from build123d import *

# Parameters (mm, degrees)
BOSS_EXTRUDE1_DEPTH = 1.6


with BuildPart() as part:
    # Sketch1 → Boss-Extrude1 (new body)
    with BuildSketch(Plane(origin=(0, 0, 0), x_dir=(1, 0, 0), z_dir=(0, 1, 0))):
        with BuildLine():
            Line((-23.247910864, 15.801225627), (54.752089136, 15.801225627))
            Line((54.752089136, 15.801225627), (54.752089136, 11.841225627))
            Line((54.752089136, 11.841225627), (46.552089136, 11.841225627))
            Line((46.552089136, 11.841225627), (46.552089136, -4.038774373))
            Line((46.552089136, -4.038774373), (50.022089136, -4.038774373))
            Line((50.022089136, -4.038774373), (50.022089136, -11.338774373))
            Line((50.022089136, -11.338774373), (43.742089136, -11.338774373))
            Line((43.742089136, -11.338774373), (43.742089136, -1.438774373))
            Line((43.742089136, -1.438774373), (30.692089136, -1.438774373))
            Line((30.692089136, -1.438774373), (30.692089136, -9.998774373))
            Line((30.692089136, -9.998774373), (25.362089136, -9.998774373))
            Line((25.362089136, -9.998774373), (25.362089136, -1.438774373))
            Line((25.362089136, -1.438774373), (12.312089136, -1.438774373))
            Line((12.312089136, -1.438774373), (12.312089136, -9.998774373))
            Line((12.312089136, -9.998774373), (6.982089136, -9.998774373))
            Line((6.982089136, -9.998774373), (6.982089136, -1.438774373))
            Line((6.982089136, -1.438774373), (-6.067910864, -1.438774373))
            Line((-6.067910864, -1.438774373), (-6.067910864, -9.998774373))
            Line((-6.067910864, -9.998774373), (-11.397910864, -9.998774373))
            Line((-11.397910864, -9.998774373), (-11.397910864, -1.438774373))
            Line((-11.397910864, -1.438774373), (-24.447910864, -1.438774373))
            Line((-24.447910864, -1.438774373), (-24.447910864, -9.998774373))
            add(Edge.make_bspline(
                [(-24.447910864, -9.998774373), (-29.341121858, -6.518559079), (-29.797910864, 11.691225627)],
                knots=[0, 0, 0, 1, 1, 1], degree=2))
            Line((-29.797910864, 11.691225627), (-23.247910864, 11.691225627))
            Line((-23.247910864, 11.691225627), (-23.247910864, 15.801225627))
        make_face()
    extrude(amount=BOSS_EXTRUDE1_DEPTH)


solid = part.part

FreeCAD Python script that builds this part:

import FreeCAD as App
import Part
import Sketcher

V = App.Vector

doc = App.newDocument("Part")
body = doc.addObject("PartDesign::Body", "Body")

sketch1 = body.newObject("Sketcher::SketchObject", "Sketch")
sketch1.AttachmentSupport = (doc.getObject("XZ_Plane"), [""])
sketch1.MapMode = "FlatFace"
sketch1.addGeometry(Part.LineSegment(V(54.752089, -15.801226, 0), V(-23.247911, -15.801226, 0)), False)
sketch1.addGeometry(Part.LineSegment(V(-23.247911, -15.801226, 0), V(-23.247911, -11.691226, 0)), False)
sketch1.addGeometry(Part.LineSegment(V(-23.247911, -11.691226, 0), V(-29.797911, -11.691226, 0)), False)
sketch1.addGeometry(Part.BSplineCurve([V(-24.447911, 9.998774, 0), V(-29.341122, 6.518559, 0), V(-29.797911, -11.691226, 0)], [3, 3], [0, 1], False, 2, [1, 1, 1], False), False)
sketch1.addGeometry(Part.LineSegment(V(-24.447911, 9.998774, 0), V(-24.447911, 1.438774, 0)), False)
sketch1.addGeometry(Part.LineSegment(V(-24.447911, 1.438774, 0), V(-11.397911, 1.438774, 0)), False)
sketch1.addGeometry(Part.LineSegment(V(-11.397911, 1.438774, 0), V(-11.397911, 9.998774, 0)), False)
sketch1.addGeometry(Part.LineSegment(V(-11.397911, 9.998774, 0), V(-6.067911, 9.998774, 0)), False)
sketch1.addGeometry(Part.LineSegment(V(-6.067911, 9.998774, 0), V(-6.067911, 1.438774, 0)), False)
sketch1.addGeometry(Part.LineSegment(V(-6.067911, 1.438774, 0), V(6.982089, 1.438774, 0)), False)
sketch1.addGeometry(Part.LineSegment(V(6.982089, 1.438774, 0), V(6.982089, 9.998774, 0)), False)
sketch1.addGeometry(Part.LineSegment(V(6.982089, 9.998774, 0), V(12.312089, 9.998774, 0)), False)
sketch1.addGeometry(Part.LineSegment(V(12.312089, 9.998774, 0), V(12.312089, 1.438774, 0)), False)
sketch1.addGeometry(Part.LineSegment(V(12.312089, 1.438774, 0), V(25.362089, 1.438774, 0)), False)
sketch1.addGeometry(Part.LineSegment(V(25.362089, 1.438774, 0), V(25.362089, 9.998774, 0)), False)
sketch1.addGeometry(Part.LineSegment(V(25.362089, 9.998774, 0), V(30.692089, 9.998774, 0)), False)
sketch1.addGeometry(Part.LineSegment(V(30.692089, 9.998774, 0), V(30.692089, 1.438774, 0)), False)
sketch1.addGeometry(Part.LineSegment(V(30.692089, 1.438774, 0), V(43.742089, 1.438774, 0)), False)
sketch1.addGeometry(Part.LineSegment(V(43.742089, 1.438774, 0), V(43.742089, 11.338774, 0)), False)
sketch1.addGeometry(Part.LineSegment(V(43.742089, 11.338774, 0), V(50.022089, 11.338774, 0)), False)
sketch1.addGeometry(Part.LineSegment(V(50.022089, 11.338774, 0), V(50.022089, 4.038774, 0)), False)
sketch1.addGeometry(Part.LineSegment(V(50.022089, 4.038774, 0), V(46.552089, 4.038774, 0)), False)
sketch1.addGeometry(Part.LineSegment(V(46.552089, 4.038774, 0), V(46.552089, -11.841226, 0)), False)
sketch1.addGeometry(Part.LineSegment(V(46.552089, -11.841226, 0), V(54.752089, -11.841226, 0)), False)
sketch1.addGeometry(Part.LineSegment(V(54.752089, -11.841226, 0), V(54.752089, -15.801226, 0)), False)
sketch1.addConstraint(Sketcher.Constraint("Block", 3))
sketch1.addConstraint(Sketcher.Constraint("Coincident", 0, 2, 1, 1))
sketch1.addConstraint(Sketcher.Constraint("Coincident", 1, 2, 2, 1))
sketch1.addConstraint(Sketcher.Constraint("Coincident", 2, 2, 3, 2))
sketch1.addConstraint(Sketcher.Constraint("Coincident", 3, 1, 4, 1))
sketch1.addConstraint(Sketcher.Constraint("Coincident", 4, 2, 5, 1))
sketch1.addConstraint(Sketcher.Constraint("Coincident", 5, 2, 6, 1))
sketch1.addConstraint(Sketcher.Constraint("Coincident", 6, 2, 7, 1))
sketch1.addConstraint(Sketcher.Constraint("Coincident", 7, 2, 8, 1))
sketch1.addConstraint(Sketcher.Constraint("Coincident", 8, 2, 9, 1))
sketch1.addConstraint(Sketcher.Constraint("Coincident", 9, 2, 10, 1))
sketch1.addConstraint(Sketcher.Constraint("Coincident", 10, 2, 11, 1))
sketch1.addConstraint(Sketcher.Constraint("Coincident", 11, 2, 12, 1))
sketch1.addConstraint(Sketcher.Constraint("Coincident", 12, 2, 13, 1))
sketch1.addConstraint(Sketcher.Constraint("Coincident", 13, 2, 14, 1))
sketch1.addConstraint(Sketcher.Constraint("Coincident", 14, 2, 15, 1))
sketch1.addConstraint(Sketcher.Constraint("Coincident", 15, 2, 16, 1))
sketch1.addConstraint(Sketcher.Constraint("Coincident", 16, 2, 17, 1))
sketch1.addConstraint(Sketcher.Constraint("Coincident", 17, 2, 18, 1))
sketch1.addConstraint(Sketcher.Constraint("Coincident", 18, 2, 19, 1))
sketch1.addConstraint(Sketcher.Constraint("Coincident", 19, 2, 20, 1))
sketch1.addConstraint(Sketcher.Constraint("Coincident", 20, 2, 21, 1))
sketch1.addConstraint(Sketcher.Constraint("Coincident", 21, 2, 22, 1))
sketch1.addConstraint(Sketcher.Constraint("Coincident", 22, 2, 23, 1))
sketch1.addConstraint(Sketcher.Constraint("Coincident", 23, 2, 24, 1))
sketch1.addConstraint(Sketcher.Constraint("Coincident", 24, 2, 0, 1))
sketch1.addConstraint(Sketcher.Constraint("Horizontal", 0))
sketch1.addConstraint(Sketcher.Constraint("Vertical", 1))
sketch1.addConstraint(Sketcher.Constraint("Horizontal", 2))
sketch1.addConstraint(Sketcher.Constraint("Vertical", 4))
sketch1.addConstraint(Sketcher.Constraint("Horizontal", 5))
sketch1.addConstraint(Sketcher.Constraint("Vertical", 6))
sketch1.addConstraint(Sketcher.Constraint("Horizontal", 7))
sketch1.addConstraint(Sketcher.Constraint("Vertical", 8))
sketch1.addConstraint(Sketcher.Constraint("Horizontal", 9))
sketch1.addConstraint(Sketcher.Constraint("Vertical", 10))
sketch1.addConstraint(Sketcher.Constraint("Horizontal", 11))
sketch1.addConstraint(Sketcher.Constraint("Vertical", 12))
sketch1.addConstraint(Sketcher.Constraint("Horizontal", 13))
sketch1.addConstraint(Sketcher.Constraint("Vertical", 14))
sketch1.addConstraint(Sketcher.Constraint("Horizontal", 15))
sketch1.addConstraint(Sketcher.Constraint("Vertical", 16))
sketch1.addConstraint(Sketcher.Constraint("Horizontal", 17))
sketch1.addConstraint(Sketcher.Constraint("Vertical", 18))
sketch1.addConstraint(Sketcher.Constraint("Horizontal", 19))
sketch1.addConstraint(Sketcher.Constraint("Vertical", 20))
sketch1.addConstraint(Sketcher.Constraint("Horizontal", 21))
sketch1.addConstraint(Sketcher.Constraint("Vertical", 22))
sketch1.addConstraint(Sketcher.Constraint("Horizontal", 23))
sketch1.addConstraint(Sketcher.Constraint("Vertical", 24))
sketch1.addConstraint(Sketcher.Constraint("Horizontal", 5, 2, 8, 2))
sketch1.addConstraint(Sketcher.Constraint("Horizontal", 7, 2, 10, 2))
sketch1.addConstraint(Sketcher.Constraint("Horizontal", 9, 2, 12, 2))
sketch1.addConstraint(Sketcher.Constraint("Horizontal", 11, 2, 14, 2))
sketch1.addConstraint(Sketcher.Constraint("Horizontal", 13, 2, 16, 2))
sketch1.addConstraint(Sketcher.Constraint("Equal", 5, 9))
sketch1.addConstraint(Sketcher.Constraint("Equal", 7, 11))
sketch1.addConstraint(Sketcher.Constraint("Equal", 9, 13))
sketch1.addConstraint(Sketcher.Constraint("Equal", 11, 15))
sketch1.addConstraint(Sketcher.Constraint("Equal", 13, 17))
sketch1.addConstraint(Sketcher.Constraint("Equal", 4, 6))
sketch1.addConstraint(Sketcher.Constraint("DistanceX", 0, 2, 0, 1, 78.0))
sketch1.addConstraint(Sketcher.Constraint("DistanceX", 23, 1, 23, 2, 8.2))
sketch1.addConstraint(Sketcher.Constraint("DistanceY", 18, 1, 18, 2, 9.9))
sketch1.addConstraint(Sketcher.Constraint("DistanceY", 20, 2, 20, 1, 7.3))
sketch1.addConstraint(Sketcher.Constraint("DistanceX", 2, 2, 2, 1, 6.55))
sketch1.addConstraint(Sketcher.Constraint("DistanceX", 5, 1, 5, 2, 13.05))
sketch1.addConstraint(Sketcher.Constraint("DistanceX", 7, 1, 7, 2, 5.33))
sketch1.addConstraint(Sketcher.Constraint("DistanceX", 19, 1, 19, 2, 6.28))
sketch1.addConstraint(Sketcher.Constraint("DistanceY", 1, 1, 1, 2, 4.11))
sketch1.addConstraint(Sketcher.Constraint("DistanceY", 4, 2, 4, 1, 8.56))
sketch1.addConstraint(Sketcher.Constraint("DistanceY", 22, 2, 22, 1, 15.88))
pad1 = body.newObject("PartDesign::Pad", "Pad")
pad1.Profile = sketch1
pad1.Length = 1.6
pad1.Reversed = True

doc.recompute()
